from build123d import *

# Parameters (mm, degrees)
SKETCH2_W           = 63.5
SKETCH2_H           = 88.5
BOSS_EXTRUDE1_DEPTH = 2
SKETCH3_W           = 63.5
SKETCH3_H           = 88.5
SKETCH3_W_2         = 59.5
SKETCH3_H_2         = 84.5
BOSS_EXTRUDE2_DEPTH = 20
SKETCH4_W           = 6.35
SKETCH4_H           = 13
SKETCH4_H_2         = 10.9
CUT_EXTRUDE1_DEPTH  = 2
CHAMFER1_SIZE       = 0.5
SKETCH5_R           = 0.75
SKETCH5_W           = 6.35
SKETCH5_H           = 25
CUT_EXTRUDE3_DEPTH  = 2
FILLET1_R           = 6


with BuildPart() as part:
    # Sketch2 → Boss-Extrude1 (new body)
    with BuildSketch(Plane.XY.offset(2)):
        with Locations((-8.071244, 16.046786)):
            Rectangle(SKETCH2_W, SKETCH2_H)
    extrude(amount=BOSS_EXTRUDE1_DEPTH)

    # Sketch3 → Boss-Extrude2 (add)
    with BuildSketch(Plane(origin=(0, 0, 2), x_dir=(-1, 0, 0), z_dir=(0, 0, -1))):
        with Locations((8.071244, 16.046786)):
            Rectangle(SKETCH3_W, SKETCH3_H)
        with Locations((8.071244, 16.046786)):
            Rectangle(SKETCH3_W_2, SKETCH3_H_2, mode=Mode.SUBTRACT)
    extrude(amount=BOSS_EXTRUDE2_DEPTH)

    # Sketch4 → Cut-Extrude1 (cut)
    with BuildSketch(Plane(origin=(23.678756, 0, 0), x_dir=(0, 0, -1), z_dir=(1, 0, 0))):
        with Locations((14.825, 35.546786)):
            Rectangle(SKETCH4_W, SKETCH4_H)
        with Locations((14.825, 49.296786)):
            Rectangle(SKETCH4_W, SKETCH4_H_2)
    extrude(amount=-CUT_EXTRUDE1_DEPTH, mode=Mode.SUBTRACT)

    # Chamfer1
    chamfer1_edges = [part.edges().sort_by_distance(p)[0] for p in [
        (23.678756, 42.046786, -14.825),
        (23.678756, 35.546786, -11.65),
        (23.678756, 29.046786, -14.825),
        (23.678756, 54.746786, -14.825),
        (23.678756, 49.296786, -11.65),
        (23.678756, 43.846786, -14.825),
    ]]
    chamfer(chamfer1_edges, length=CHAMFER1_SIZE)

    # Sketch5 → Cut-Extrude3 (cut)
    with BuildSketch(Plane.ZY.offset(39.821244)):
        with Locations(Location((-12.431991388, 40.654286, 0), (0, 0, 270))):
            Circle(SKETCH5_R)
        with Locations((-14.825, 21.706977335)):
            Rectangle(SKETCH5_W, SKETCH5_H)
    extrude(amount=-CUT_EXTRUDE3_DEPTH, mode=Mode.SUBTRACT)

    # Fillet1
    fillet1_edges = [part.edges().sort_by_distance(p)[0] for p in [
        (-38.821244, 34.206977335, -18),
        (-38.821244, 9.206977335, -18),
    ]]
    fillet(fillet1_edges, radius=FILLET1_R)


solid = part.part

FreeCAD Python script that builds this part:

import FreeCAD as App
import Part
import Sketcher

V = App.Vector


def edges_at(feature, points):
    """Names of the edges that pass closest to the given points."""
    edges = feature.Shape.Edges
    near = lambda p: min(range(len(edges)), key=lambda i: edges[i].distToShape(Part.Vertex(*p))[0])
    return sorted({f"Edge{near(p) + 1}" for p in points})


def add_polygon(sketch, points):
    """Adds a closed chain of lines whose ends are joined by coincident constraints."""
    first, n = sketch.GeometryCount, len(points)
    for a, b in zip(points, points[1:] + points[:1]):
        sketch.addGeometry(Part.LineSegment(App.Vector(*a, 0), App.Vector(*b, 0)), False)
    for i in range(n):
        sketch.addConstraint(Sketcher.Constraint("Coincident", first + i, 2, first + (i + 1) % n, 1))

doc = App.newDocument("Part")
body = doc.addObject("PartDesign::Body", "Body")

sketch1 = body.newObject("Sketcher::SketchObject", "Sketch")
sketch1.AttachmentSupport = (doc.getObject("XY_Plane"), [""])
sketch1.MapMode = "FlatFace"
sketch1.AttachmentOffset = App.Placement(V(0, 0, 2), App.Rotation())
add_polygon(sketch1, [(-40, 60), (-40, -28), (24, -28), (24, 60)])
sketch1.addConstraint(Sketcher.Constraint("Vertical", 0))
sketch1.addConstraint(Sketcher.Constraint("Horizontal", 1))
sketch1.addConstraint(Sketcher.Constraint("Vertical", 2))
sketch1.addConstraint(Sketcher.Constraint("Horizontal", 3))
sketch1.addConstraint(Sketcher.Constraint("DistanceX", 1, 1, 1, 2, 63.5))
sketch1.addConstraint(Sketcher.Constraint("DistanceY", 0, 2, 0, 1, 88.5))
sketch1.addConstraint(Sketcher.Constraint("DistanceX", 0, 2, -1, 1, 39.821244))
sketch1.addConstraint(Sketcher.Constraint("DistanceY", 0, 2, -1, 1, 28.203214))
pad1 = body.newObject("PartDesign::Pad", "Pad")
pad1.Profile = sketch1
pad1.Length = 2

sketch2 = body.newObject("Sketcher::SketchObject", "Sketch001")
sketch2.AttachmentSupport = (doc.getObject("XY_Plane"), [""])
sketch2.MapMode = "FlatFace"
sketch2.AttachmentOffset = App.Placement(V(0, 0, 2), App.Rotation())
add_polygon(sketch2, [(24, 60), (24, -28), (-40, -28), (-40, 60)])
add_polygon(sketch2, [(-38, -26), (22, -26), (22, 58), (-38, 58)])
sketch2.addConstraint(Sketcher.Constraint("Vertical", 0))
sketch2.addConstraint(Sketcher.Constraint("Horizontal", 1))
sketch2.addConstraint(Sketcher.Constraint("Vertical", 2))
sketch2.addConstraint(Sketcher.Constraint("Horizontal", 3))
sketch2.addConstraint(Sketcher.Constraint("Horizontal", 4))
sketch2.addConstraint(Sketcher.Constraint("Vertical", 5))
sketch2.addConstraint(Sketcher.Constraint("Horizontal", 6))
sketch2.addConstraint(Sketcher.Constraint("Vertical", 7))
sketch2.addConstraint(Sketcher.Constraint("DistanceX", 1, 2, 1, 1, 63.5))
sketch2.addConstraint(Sketcher.Constraint("DistanceX", 4, 1, 4, 2, 59.5))
sketch2.addConstraint(Sketcher.Constraint("DistanceY", 0, 2, 0, 1, 88.5))
sketch2.addConstraint(Sketcher.Constraint("DistanceY", 5, 1, 5, 2, 84.5))
sketch2.addConstraint(Sketcher.Constraint("DistanceX", 4, 2, 0, 2, 2.0))
sketch2.addConstraint(Sketcher.Constraint("DistanceY", 0, 2, 4, 2, 2.0))
sketch2.addConstraint(Sketcher.Constraint("DistanceX", -1, 1, 0, 2, 23.678756))
sketch2.addConstraint(Sketcher.Constraint("DistanceY", 0, 2, -1, 1, 28.203214))
pad2 = body.newObject("PartDesign::Pad", "Pad001")
pad2.Profile = sketch2
pad2.Length = 20
pad2.Reversed = True

sketch3 = body.newObject("Sketcher::SketchObject", "Sketch002")
sketch3.AttachmentSupport = (doc.getObject("YZ_Plane"), [""])
sketch3.MapMode = "FlatFace"
sketch3.AttachmentOffset = App.Placement(V(0, 0, 23.678756), App.Rotation())
add_polygon(sketch3, [(42, -12), (29, -12), (29, -18), (42, -18)])
add_polygon(sketch3, [(55, -12), (44, -12), (44, -18), (55, -18)])
sketch3.addConstraint(Sketcher.Constraint("Horizontal", 0))
sketch3.addConstraint(Sketcher.Constraint("Vertical", 1))
sketch3.addConstraint(Sketcher.Constraint("Horizontal", 2))
sketch3.addConstraint(Sketcher.Constraint("Vertical", 3))
sketch3.addConstraint(Sketcher.Constraint("Horizontal", 4))
sketch3.addConstraint(Sketcher.Constraint("Vertical", 5))
sketch3.addConstraint(Sketcher.Constraint("Horizontal", 6))
sketch3.addConstraint(Sketcher.Constraint("Vertical", 7))
sketch3.addConstraint(Sketcher.Constraint("Horizontal", 3, 2, 4, 2))
sketch3.addConstraint(Sketcher.Constraint("Horizontal", 2, 2, 5, 2))
sketch3.addConstraint(Sketcher.Constraint("DistanceX", 0, 2, 0, 1, 13.0))
sketch3.addConstraint(Sketcher.Constraint("DistanceX", 4, 2, 4, 1, 10.9))
sketch3.addConstraint(Sketcher.Constraint("DistanceY", 1, 2, -1, 1, 18.0))
sketch3.addConstraint(Sketcher.Constraint("DistanceY", 1, 2, 1, 1, 6.35))
sketch3.addConstraint(Sketcher.Constraint("DistanceX", 3, 2, 4, 2, 1.8))
sketch3.addConstraint(Sketcher.Constraint("DistanceX", -1, 1, 0, 2, 29.046786))
pocket1 = body.newObject("PartDesign::Pocket", "Pocket")
pocket1.Profile = sketch3
pocket1.Length = 2
doc.recompute()

chamfer = body.newObject("PartDesign::Chamfer", "Chamfer")
chamfer.Base = (pocket1, edges_at(pocket1, [
    (23.679, 42.047, -14.825),
    (23.679, 35.547, -11.65),
    (23.679, 29.047, -14.825),
    (23.679, 54.747, -14.825),
    (23.679, 49.297, -11.65),
    (23.679, 43.847, -14.825),
]))
chamfer.Size = 0.5

sketch4 = body.newObject("Sketcher::SketchObject", "Sketch003")
sketch4.AttachmentSupport = (doc.getObject("YZ_Plane"), [""])
sketch4.MapMode = "FlatFace"
sketch4.AttachmentOffset = App.Placement(V(0, 0, -39.821244), App.Rotation())
sketch4.addGeometry(Part.Circle(V(40.7, -12.4, 0), V(0, 0, 1), 0.8), False)
add_polygon(sketch4, [(34.2, -18), (9.2, -18), (9.2, -11.7), (34.2, -11.7)])
sketch4.addConstraint(Sketcher.Constraint("Horizontal", 1))
sketch4.addConstraint(Sketcher.Constraint("Vertical", 2))
sketch4.addConstraint(Sketcher.Constraint("Horizontal", 3))
sketch4.addConstraint(Sketcher.Constraint("Vertical", 4))
sketch4.addConstraint(Sketcher.Constraint("Diameter", 0, 1.5))
sketch4.addConstraint(Sketcher.Constraint("DistanceX", 1, 2, 1, 1, 25.0))
sketch4.addConstraint(Sketcher.Constraint("DistanceY", 1, 2, -1, 1, 18.0))
sketch4.addConstraint(Sketcher.Constraint("DistanceY", 2, 1, 2, 2, 6.35))
sketch4.addConstraint(Sketcher.Constraint("DistanceY", 0, 3, -1, 1, 12.431991))
sketch4.addConstraint(Sketcher.Constraint("DistanceX", 1, 2, 0, 3, 31.447309))
sketch4.addConstraint(Sketcher.Constraint("DistanceX", -1, 1, 0, 3, 40.654286))
pocket2 = body.newObject("PartDesign::Pocket", "Pocket001")
pocket2.Profile = sketch4
pocket2.Length = 2
pocket2.Reversed = True
doc.recompute()

fillet = body.newObject("PartDesign::Fillet", "Fillet")
fillet.Base = (pocket2, edges_at(pocket2, [(-38.821, 34.207, -18), (-38.821, 9.207, -18)]))
fillet.Radius = 6

doc.recompute()
